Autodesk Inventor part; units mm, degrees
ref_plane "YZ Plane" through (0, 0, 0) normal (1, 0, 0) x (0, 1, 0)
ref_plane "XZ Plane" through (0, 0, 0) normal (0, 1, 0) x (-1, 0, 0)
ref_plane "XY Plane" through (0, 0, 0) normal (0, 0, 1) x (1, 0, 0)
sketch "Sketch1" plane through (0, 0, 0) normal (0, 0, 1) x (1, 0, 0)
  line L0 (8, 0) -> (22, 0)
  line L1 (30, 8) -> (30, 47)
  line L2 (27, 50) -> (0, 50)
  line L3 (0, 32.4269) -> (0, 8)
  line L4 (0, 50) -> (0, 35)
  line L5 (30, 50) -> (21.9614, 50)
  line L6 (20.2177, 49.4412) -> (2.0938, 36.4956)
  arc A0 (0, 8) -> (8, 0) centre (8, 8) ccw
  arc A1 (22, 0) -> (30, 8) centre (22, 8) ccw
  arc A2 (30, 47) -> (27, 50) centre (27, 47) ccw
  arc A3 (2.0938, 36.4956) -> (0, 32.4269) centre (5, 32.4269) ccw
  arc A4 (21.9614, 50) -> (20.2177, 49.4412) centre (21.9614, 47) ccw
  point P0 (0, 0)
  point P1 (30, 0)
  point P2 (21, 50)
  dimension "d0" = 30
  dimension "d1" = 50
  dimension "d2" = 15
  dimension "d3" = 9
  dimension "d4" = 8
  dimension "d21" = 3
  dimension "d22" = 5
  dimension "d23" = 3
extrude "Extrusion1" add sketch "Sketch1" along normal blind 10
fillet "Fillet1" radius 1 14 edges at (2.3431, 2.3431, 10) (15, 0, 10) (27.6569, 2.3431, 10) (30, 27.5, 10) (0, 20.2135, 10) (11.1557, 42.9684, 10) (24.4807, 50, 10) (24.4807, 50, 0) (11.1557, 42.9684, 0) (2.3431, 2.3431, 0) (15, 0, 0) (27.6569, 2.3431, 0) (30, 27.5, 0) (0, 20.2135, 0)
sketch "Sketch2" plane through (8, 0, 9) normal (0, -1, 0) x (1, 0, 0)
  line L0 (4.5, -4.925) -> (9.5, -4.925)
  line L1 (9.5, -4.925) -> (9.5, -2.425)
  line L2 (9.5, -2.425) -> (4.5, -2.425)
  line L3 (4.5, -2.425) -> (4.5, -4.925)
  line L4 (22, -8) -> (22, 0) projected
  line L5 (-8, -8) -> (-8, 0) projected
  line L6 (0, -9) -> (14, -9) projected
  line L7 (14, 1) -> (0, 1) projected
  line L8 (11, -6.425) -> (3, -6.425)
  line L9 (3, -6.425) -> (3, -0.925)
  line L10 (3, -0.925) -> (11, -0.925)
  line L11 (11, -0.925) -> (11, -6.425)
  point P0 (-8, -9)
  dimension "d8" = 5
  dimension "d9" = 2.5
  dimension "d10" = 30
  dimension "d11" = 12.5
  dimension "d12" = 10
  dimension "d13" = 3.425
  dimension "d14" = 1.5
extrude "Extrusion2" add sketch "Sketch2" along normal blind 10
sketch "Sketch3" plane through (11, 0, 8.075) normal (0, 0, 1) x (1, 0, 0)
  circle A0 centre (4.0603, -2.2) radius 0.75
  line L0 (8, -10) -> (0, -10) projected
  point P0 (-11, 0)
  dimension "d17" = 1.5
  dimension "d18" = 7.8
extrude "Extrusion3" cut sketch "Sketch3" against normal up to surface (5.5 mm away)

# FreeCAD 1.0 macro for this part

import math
import FreeCAD as App
import Part
import Sketcher

V = App.Vector


def edges_at(feature, points):
    """Names of the edges that pass closest to the given points."""
    edges = feature.Shape.Edges
    near = lambda p: min(range(len(edges)), key=lambda i: edges[i].distToShape(Part.Vertex(*p))[0])
    return sorted({f"Edge{near(p) + 1}" for p in points})

doc = App.newDocument("Part")
body = doc.addObject("PartDesign::Body", "Body")

sketch1 = doc.addObject("Sketcher::SketchObject", "Sketch")
body.addObject(sketch1)
sketch1.AttachmentSupport = (doc.XY_Plane, [""])
sketch1.MapMode = "FlatFace"
sketch1.addGeometry([
    Part.ArcOfCircle(Part.Circle(V(8, 8, 0), V(0, 0, 1), 8), math.radians(180), math.radians(270)),
    Part.LineSegment(V(8, 0, 0), V(22, 0, 0)),
    Part.ArcOfCircle(Part.Circle(V(22, 8, 0), V(0, 0, 1), 8), math.radians(-90), math.radians(0)),
    Part.LineSegment(V(30, 8, 0), V(30, 47, 0)),
    Part.ArcOfCircle(Part.Circle(V(27, 47, 0), V(0, 0, 1), 3), math.radians(0), math.radians(90)),
    Part.LineSegment(V(27, 50, 0), V(22, 50, 0)),
    Part.ArcOfCircle(Part.Circle(V(22, 47, 0), V(0, 0, 1), 3), math.radians(90), math.radians(126)),
    Part.LineSegment(V(20.2, 49.4, 0), V(2.1, 36.5, 0)),
    Part.ArcOfCircle(Part.Circle(V(5, 32.4, 0), V(0, 0, 1), 5), math.radians(126), math.radians(180)),
    Part.LineSegment(V(0, 32.4, 0), V(0, 8, 0)),
], False)
sketch1.addConstraint([
    Sketcher.Constraint("Tangent", 0, 2, 1, 1),
    Sketcher.Constraint("Tangent", 1, 2, 2, 1),
    Sketcher.Constraint("Tangent", 2, 2, 3, 1),
    Sketcher.Constraint("Tangent", 3, 2, 4, 1),
    Sketcher.Constraint("Tangent", 4, 2, 5, 1),
    Sketcher.Constraint("Tangent", 5, 2, 6, 1),
    Sketcher.Constraint("Tangent", 6, 2, 7, 1),
    Sketcher.Constraint("Tangent", 7, 2, 8, 1),
    Sketcher.Constraint("Tangent", 8, 2, 9, 1),
    Sketcher.Constraint("Tangent", 9, 2, 0, 1),
    Sketcher.Constraint("Horizontal", 1),
    Sketcher.Constraint("Vertical", 3),
    Sketcher.Constraint("Horizontal", 5),
    Sketcher.Constraint("Vertical", 9),
    Sketcher.Constraint("Equal", 0, 2),
    Sketcher.Constraint("Equal", 4, 6),
    Sketcher.Constraint("PointOnObject", 0, 2, -1),
    Sketcher.Constraint("PointOnObject", 8, 2, -2),
    Sketcher.Constraint("Radius", 0, 8.0),
    Sketcher.Constraint("Radius", 4, 3.0),
    Sketcher.Constraint("Radius", 8, 5.0),
    Sketcher.Constraint("DistanceX", -1, 1, 2, 2, 30.0),
    Sketcher.Constraint("DistanceY", -1, 1, 4, 2, 50.0),
    Sketcher.Constraint("DistanceY", 9, 2, 9, 1, 24.427),
    Sketcher.Constraint("DistanceX", 5, 2, 5, 1, 5.0386),
])
pad1 = doc.addObject("PartDesign::Pad", "Pad")
body.addObject(pad1)
pad1.Profile = sketch1
pad1.Length = 10
doc.recompute()

fillet = doc.addObject("PartDesign::Fillet", "Fillet")
body.addObject(fillet)
fillet.Base = (pad1, edges_at(pad1, [
    (2.343, 2.343, 10),
    (15, 0, 10),
    (27.657, 2.343, 10),
    (30, 27.5, 10),
    (0, 20.213, 10),
    (11.156, 42.968, 10),
    (24.481, 50, 10),
    (24.481, 50, 0),
    (11.156, 42.968, 0),
    (2.343, 2.343, 0),
    (15, 0, 0),
    (27.657, 2.343, 0),
    (30, 27.5, 0),
    (0, 20.213, 0),
]))
fillet.Radius = 1

sketch2 = doc.addObject("Sketcher::SketchObject", "Sketch001")
body.addObject(sketch2)
sketch2.AttachmentSupport = (doc.XZ_Plane, [""])
sketch2.MapMode = "FlatFace"
sketch2.addGeometry([
    Part.LineSegment(V(11, 2.6, 0), V(19, 2.6, 0)),
    Part.LineSegment(V(19, 2.6, 0), V(19, 8.1, 0)),
    Part.LineSegment(V(19, 8.1, 0), V(11, 8.1, 0)),
    Part.LineSegment(V(11, 8.1, 0), V(11, 2.6, 0)),
    Part.LineSegment(V(17.5, 4.1, 0), V(12.5, 4.1, 0)),
    Part.LineSegment(V(12.5, 4.1, 0), V(12.5, 6.6, 0)),
    Part.LineSegment(V(12.5, 6.6, 0), V(17.5, 6.6, 0)),
    Part.LineSegment(V(17.5, 6.6, 0), V(17.5, 4.1, 0)),
], False)
sketch2.addConstraint([
    Sketcher.Constraint("Coincident", 0, 2, 1, 1),
    Sketcher.Constraint("Coincident", 1, 2, 2, 1),
    Sketcher.Constraint("Coincident", 2, 2, 3, 1),
    Sketcher.Constraint("Coincident", 3, 2, 0, 1),
    Sketcher.Constraint("Coincident", 4, 2, 5, 1),
    Sketcher.Constraint("Coincident", 5, 2, 6, 1),
    Sketcher.Constraint("Coincident", 6, 2, 7, 1),
    Sketcher.Constraint("Coincident", 7, 2, 4, 1),
    Sketcher.Constraint("Horizontal", 0),
    Sketcher.Constraint("Vertical", 1),
    Sketcher.Constraint("Horizontal", 2),
    Sketcher.Constraint("Vertical", 3),
    Sketcher.Constraint("Horizontal", 4),
    Sketcher.Constraint("Vertical", 5),
    Sketcher.Constraint("Horizontal", 6),
    Sketcher.Constraint("Vertical", 7),
    Sketcher.Constraint("DistanceX", 4, 2, 4, 1, 5.0),
    Sketcher.Constraint("DistanceY", 5, 1, 5, 2, 2.5),
    Sketcher.Constraint("DistanceX", -1, 1, 4, 2, 12.5),
    Sketcher.Constraint("DistanceX", 3, 2, 4, 2, 1.5),
    Sketcher.Constraint("DistanceY", 3, 2, 4, 2, 1.5),
    Sketcher.Constraint("DistanceY", 5, 2, 2, 2, 1.5),
    Sketcher.Constraint("DistanceX", 6, 2, 1, 2, 1.5),
    Sketcher.Constraint("DistanceY", -1, 1, 0, 2, 2.575),
])
pad2 = doc.addObject("PartDesign::Pad", "Pad001")
body.addObject(pad2)
pad2.Profile = sketch2
pad2.Length = 10

sketch3 = doc.addObject("Sketcher::SketchObject", "Sketch002")
body.addObject(sketch3)
sketch3.AttachmentSupport = (doc.XY_Plane, [""])
sketch3.MapMode = "FlatFace"
sketch3.AttachmentOffset = App.Placement(V(0, 0, 8.075), App.Rotation())
sketch3.addGeometry(Part.Circle(V(15.1, -2.2, 0), V(0, 0, 1), 0.8), False)
sketch3.addConstraint([
    Sketcher.Constraint("Diameter", 0, 1.5),
    Sketcher.Constraint("DistanceY", 0, 3, -1, 1, 2.2),
    Sketcher.Constraint("DistanceX", -1, 1, 0, 3, 15.0603),
])
pocket1 = doc.addObject("PartDesign::Pocket", "Pocket")
body.addObject(pocket1)
pocket1.Profile = sketch3
pocket1.Length = 5.5

doc.recompute()
